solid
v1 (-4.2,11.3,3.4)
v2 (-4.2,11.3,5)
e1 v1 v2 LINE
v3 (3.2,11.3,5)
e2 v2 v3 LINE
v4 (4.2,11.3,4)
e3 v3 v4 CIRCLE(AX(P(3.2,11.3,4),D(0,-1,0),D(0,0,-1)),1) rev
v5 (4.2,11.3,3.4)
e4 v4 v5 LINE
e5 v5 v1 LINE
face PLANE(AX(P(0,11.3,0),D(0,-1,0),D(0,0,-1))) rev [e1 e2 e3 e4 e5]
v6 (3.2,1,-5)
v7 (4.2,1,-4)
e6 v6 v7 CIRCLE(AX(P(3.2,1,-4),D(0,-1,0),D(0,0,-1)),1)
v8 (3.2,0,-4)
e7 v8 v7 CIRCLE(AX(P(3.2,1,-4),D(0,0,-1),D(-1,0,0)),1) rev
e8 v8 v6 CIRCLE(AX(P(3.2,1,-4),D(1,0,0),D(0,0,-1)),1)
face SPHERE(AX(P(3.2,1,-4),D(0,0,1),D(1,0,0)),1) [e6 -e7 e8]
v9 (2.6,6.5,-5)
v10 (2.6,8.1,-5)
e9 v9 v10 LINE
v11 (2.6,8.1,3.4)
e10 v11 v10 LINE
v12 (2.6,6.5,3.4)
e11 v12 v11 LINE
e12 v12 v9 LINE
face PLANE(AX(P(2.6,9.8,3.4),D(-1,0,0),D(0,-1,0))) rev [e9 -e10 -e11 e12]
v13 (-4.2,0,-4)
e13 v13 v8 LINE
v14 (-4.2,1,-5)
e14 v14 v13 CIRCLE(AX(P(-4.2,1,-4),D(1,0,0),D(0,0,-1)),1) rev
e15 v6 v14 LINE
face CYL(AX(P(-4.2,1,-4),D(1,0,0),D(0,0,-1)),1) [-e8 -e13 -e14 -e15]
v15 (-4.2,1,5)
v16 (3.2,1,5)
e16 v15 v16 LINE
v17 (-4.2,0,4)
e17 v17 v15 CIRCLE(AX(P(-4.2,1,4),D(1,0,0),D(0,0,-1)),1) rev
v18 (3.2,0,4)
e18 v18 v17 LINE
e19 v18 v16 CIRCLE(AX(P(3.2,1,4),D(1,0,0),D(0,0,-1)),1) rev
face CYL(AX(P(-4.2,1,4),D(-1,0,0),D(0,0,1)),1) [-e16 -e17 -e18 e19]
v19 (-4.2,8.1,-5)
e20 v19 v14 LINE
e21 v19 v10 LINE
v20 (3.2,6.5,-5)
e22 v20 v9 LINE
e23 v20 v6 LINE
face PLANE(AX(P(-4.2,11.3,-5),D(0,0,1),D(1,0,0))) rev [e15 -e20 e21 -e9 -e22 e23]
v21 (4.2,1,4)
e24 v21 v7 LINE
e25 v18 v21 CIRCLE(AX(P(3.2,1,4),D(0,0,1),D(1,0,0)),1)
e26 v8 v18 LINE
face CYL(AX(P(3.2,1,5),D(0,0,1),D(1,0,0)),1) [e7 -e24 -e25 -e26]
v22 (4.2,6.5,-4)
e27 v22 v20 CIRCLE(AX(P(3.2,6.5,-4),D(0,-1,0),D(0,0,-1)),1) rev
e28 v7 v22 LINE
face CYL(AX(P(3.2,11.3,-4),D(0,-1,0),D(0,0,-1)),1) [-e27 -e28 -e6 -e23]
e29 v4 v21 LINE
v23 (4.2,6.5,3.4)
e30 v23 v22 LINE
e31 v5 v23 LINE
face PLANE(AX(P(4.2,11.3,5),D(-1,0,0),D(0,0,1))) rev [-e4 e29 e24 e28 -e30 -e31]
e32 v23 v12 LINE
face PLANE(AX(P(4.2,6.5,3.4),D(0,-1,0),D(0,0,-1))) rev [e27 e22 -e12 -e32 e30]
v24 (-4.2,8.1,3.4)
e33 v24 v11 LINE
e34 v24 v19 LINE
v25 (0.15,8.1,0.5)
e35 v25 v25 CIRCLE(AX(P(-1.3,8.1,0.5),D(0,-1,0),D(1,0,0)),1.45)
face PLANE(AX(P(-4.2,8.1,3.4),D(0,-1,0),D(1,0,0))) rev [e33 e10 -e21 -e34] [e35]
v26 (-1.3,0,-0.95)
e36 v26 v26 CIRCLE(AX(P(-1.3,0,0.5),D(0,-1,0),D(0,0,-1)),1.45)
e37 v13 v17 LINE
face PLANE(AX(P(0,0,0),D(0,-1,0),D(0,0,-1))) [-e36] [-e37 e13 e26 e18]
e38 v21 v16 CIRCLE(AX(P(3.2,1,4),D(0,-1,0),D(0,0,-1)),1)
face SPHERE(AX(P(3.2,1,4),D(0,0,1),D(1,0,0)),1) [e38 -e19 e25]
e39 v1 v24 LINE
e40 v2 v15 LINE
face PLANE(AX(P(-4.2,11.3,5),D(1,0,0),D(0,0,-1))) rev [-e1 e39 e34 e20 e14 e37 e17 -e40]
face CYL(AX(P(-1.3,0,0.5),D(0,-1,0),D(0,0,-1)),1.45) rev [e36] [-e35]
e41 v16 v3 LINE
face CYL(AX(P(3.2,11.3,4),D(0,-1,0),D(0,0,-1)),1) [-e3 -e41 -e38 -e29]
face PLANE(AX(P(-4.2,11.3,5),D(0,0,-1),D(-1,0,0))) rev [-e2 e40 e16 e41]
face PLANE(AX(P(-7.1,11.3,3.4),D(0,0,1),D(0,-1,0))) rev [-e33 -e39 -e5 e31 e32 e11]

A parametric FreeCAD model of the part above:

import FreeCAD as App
import Part
import Sketcher
Q = App.Units.Quantity


def edges_at(feature, points):
    """Names of the edges that pass closest to the given points."""
    edges = feature.Shape.Edges
    near = lambda p: min(range(len(edges)), key=lambda i: edges[i].distToShape(Part.Vertex(*p))[0])
    return sorted({f"Edge{near(p) + 1}" for p in points})


def add_polygon(sketch, points):
    """Adds a closed chain of lines whose ends are joined by coincident constraints."""
    first, n = sketch.GeometryCount, len(points)
    for a, b in zip(points, points[1:] + points[:1]):
        sketch.addGeometry(Part.LineSegment(App.Vector(*a, 0), App.Vector(*b, 0)), False)
    for i in range(n):
        sketch.addConstraint(Sketcher.Constraint("Coincident", first + i, 2, first + (i + 1) % n, 1))

doc = App.newDocument("Part")
params = doc.addObject("Spreadsheet::Sheet", "Params")
for row, (alias, value) in enumerate([
    ("sketch1_height", "10 mm"),
    ("sketch1_width", "8.4 mm"),
    ("pad1_length", "11.3 mm"),
    ("sketch2_width", "1.5 mm"),
    ("sketch2_height", "8.4 mm"),
    ("pocket1_length", "11.3 mm"),
    ("sketch3_width", "1.6 mm"),
    ("sketch3_height", "3.3 mm"),
    ("pocket2_length", "8.4 mm"),
    ("sketch4_width", "1.7 mm"),
    ("sketch4_height", "8.4 mm"),
    ("pocket3_length", "6.8 mm"),
    ("sketch5_width", "6.8 mm"),
    ("sketch5_height", "1.6 mm"),
    ("pad2_length", "1.6 mm"),
    ("fillet_radius", "1 mm"),
    ("sketch6_diameter", "2.9 mm"),
    ("hole_diameter", "2.9 mm"),
    ("sketch7_width", "1.6 mm"),
    ("pocket4_length", "6.8 mm"),
], start=1):
    params.set(f"A{row}", alias)
    params.set(f"B{row}", "=" + value)
    params.setAlias(f"B{row}", alias)

body = doc.addObject("PartDesign::Body", "Body")

sketch1 = body.newObject("Sketcher::SketchObject", "Sketch")
sketch1.AttachmentSupport = (doc.getObject("XZ_Plane"), [""])
sketch1.MapMode = "FlatFace"
add_polygon(sketch1, [(-4.2, -5), (-4.2, 5), (4.2, 5), (4.2, -5)])
sketch1.addConstraint([
    Sketcher.Constraint("Vertical", 0),
    Sketcher.Constraint("Horizontal", 1),
    Sketcher.Constraint("Vertical", 2),
    Sketcher.Constraint("Horizontal", 3),
    Sketcher.Constraint("Symmetric", 0, 2, 2, 2, -1, 1),
    Sketcher.Constraint("DistanceY", 0, 1, 0, 2, Q("10 mm")),
    Sketcher.Constraint("DistanceX", 1, 1, 1, 2, Q("8.4 mm")),
])
sketch1.setExpression("Constraints[9]", "Params.sketch1_height")
sketch1.setExpression("Constraints[10]", "Params.sketch1_width")
pad1 = body.newObject("PartDesign::Pad", "Pad")
pad1.Profile = sketch1
pad1.setExpression("Length", "Params.pad1_length")
pad1.Reversed = True

sketch2 = body.newObject("Sketcher::SketchObject", "Sketch001")
sketch2.AttachmentSupport = (doc.getObject("YZ_Plane"), [""])
sketch2.MapMode = "FlatFace"
sketch2.AttachmentOffset = App.Placement(App.Vector(0, 0, 4.2), App.Rotation())
add_polygon(sketch2, [(11.3, 3.4), (9.8, 3.4), (9.8, -5), (11.3, -5)])
sketch2.addConstraint([
    Sketcher.Constraint("Horizontal", 0),
    Sketcher.Constraint("Vertical", 1),
    Sketcher.Constraint("Horizontal", 2),
    Sketcher.Constraint("Vertical", 3),
    Sketcher.Constraint("DistanceX", 0, 2, 0, 1, Q("1.5 mm")),
    Sketcher.Constraint("DistanceY", 1, 2, 1, 1, Q("8.4 mm")),
    Sketcher.Constraint("DistanceY", 1, 2, -1, 1, Q("5 mm")),
    Sketcher.Constraint("DistanceX", -1, 1, 0, 2, Q("9.8 mm")),
])
sketch2.setExpression("Constraints[8]", "Params.sketch2_width")
sketch2.setExpression("Constraints[9]", "Params.sketch2_height")
pocket1 = body.newObject("PartDesign::Pocket", "Pocket")
pocket1.Profile = sketch2
pocket1.setExpression("Length", "Params.pocket1_length")

sketch3 = body.newObject("Sketcher::SketchObject", "Sketch002")
sketch3.AttachmentSupport = (doc.getObject("XY_Plane"), [""])
sketch3.MapMode = "FlatFace"
sketch3.AttachmentOffset = App.Placement(App.Vector(0, 0, -5), App.Rotation())
add_polygon(sketch3, [(4.2, 9.8), (4.2, 6.5), (2.6, 6.5), (2.6, 9.8)])
sketch3.addConstraint([
    Sketcher.Constraint("Vertical", 0),
    Sketcher.Constraint("Horizontal", 1),
    Sketcher.Constraint("Vertical", 2),
    Sketcher.Constraint("Horizontal", 3),
    Sketcher.Constraint("DistanceX", 1, 2, 1, 1, Q("1.6 mm")),
    Sketcher.Constraint("DistanceY", 0, 2, 0, 1, Q("3.3 mm")),
    Sketcher.Constraint("DistanceX", -1, 1, 0, 2, Q("4.2 mm")),
    Sketcher.Constraint("DistanceY", -1, 1, 0, 2, Q("6.5 mm")),
])
sketch3.setExpression("Constraints[8]", "Params.sketch3_width")
sketch3.setExpression("Constraints[9]", "Params.sketch3_height")
pocket2 = body.newObject("PartDesign::Pocket", "Pocket001")
pocket2.Profile = sketch3
pocket2.setExpression("Length", "Params.pocket2_length")
pocket2.Reversed = True

sketch4 = body.newObject("Sketcher::SketchObject", "Sketch003")
sketch4.AttachmentSupport = (doc.getObject("YZ_Plane"), [""])
sketch4.MapMode = "FlatFace"
sketch4.AttachmentOffset = App.Placement(App.Vector(0, 0, 2.6), App.Rotation())
add_polygon(sketch4, [(9.8, 3.4), (8.1, 3.4), (8.1, -5), (9.8, -5)])
sketch4.addConstraint([
    Sketcher.Constraint("Horizontal", 0),
    Sketcher.Constraint("Vertical", 1),
    Sketcher.Constraint("Horizontal", 2),
    Sketcher.Constraint("Vertical", 3),
    Sketcher.Constraint("DistanceX", 0, 2, 0, 1, Q("1.7 mm")),
    Sketcher.Constraint("DistanceY", 1, 2, 1, 1, Q("8.4 mm")),
    Sketcher.Constraint("DistanceY", 1, 2, -1, 1, Q("5 mm")),
    Sketcher.Constraint("DistanceX", -1, 1, 0, 2, Q("8.1 mm")),
])
sketch4.setExpression("Constraints[8]", "Params.sketch4_width")
sketch4.setExpression("Constraints[9]", "Params.sketch4_height")
pocket3 = body.newObject("PartDesign::Pocket", "Pocket002")
pocket3.Profile = sketch4
pocket3.setExpression("Length", "Params.pocket3_length")

sketch5 = body.newObject("Sketcher::SketchObject", "Sketch004")
sketch5.AttachmentSupport = (doc.getObject("XY_Plane"), [""])
sketch5.MapMode = "FlatFace"
sketch5.AttachmentOffset = App.Placement(App.Vector(0, 0, 3.4), App.Rotation())
add_polygon(sketch5, [(2.6, 9.7), (2.6, 8.1), (-4.2, 8.1), (-4.2, 9.7)])
sketch5.addConstraint([
    Sketcher.Constraint("Vertical", 0),
    Sketcher.Constraint("Horizontal", 1),
    Sketcher.Constraint("Vertical", 2),
    Sketcher.Constraint("Horizontal", 3),
    Sketcher.Constraint("DistanceX", 1, 2, 1, 1, Q("6.8 mm")),
    Sketcher.Constraint("DistanceY", 0, 2, 0, 1, Q("1.6 mm")),
    Sketcher.Constraint("DistanceX", -1, 1, 0, 2, Q("2.6 mm")),
    Sketcher.Constraint("DistanceY", -1, 1, 0, 2, Q("8.1 mm")),
])
sketch5.setExpression("Constraints[8]", "Params.sketch5_width")
sketch5.setExpression("Constraints[9]", "Params.sketch5_height")
pad2 = body.newObject("PartDesign::Pad", "Pad001")
pad2.Profile = sketch5
pad2.setExpression("Length", "Params.pad2_length")
pad2.Reversed = True
doc.recompute()

fillet = body.newObject("PartDesign::Fillet", "Fillet")
fillet.Base = (pad2, edges_at(pad2, [
    (4.2, 3.25, -5),
    (0, 0, 5),
    (0, 0, -5),
    (4.2, 0, 0),
    (4.2, 5.65, 5),
]))
fillet.setExpression("Radius", "Params.fillet_radius")

sketch6 = body.newObject("Sketcher::SketchObject", "Sketch005")
sketch6.AttachmentSupport = (doc.getObject("XZ_Plane"), [""])
sketch6.MapMode = "FlatFace"
sketch6.addGeometry(Part.Circle(App.Vector(-1.3, 0.5, 0), App.Vector(0, 0, 1), 1.45), False)
sketch6.addConstraint([
    Sketcher.Constraint("Diameter", 0, Q("2.9 mm")),
    Sketcher.Constraint("DistanceX", 0, 3, -1, 1, Q("1.3 mm")),
    Sketcher.Constraint("DistanceY", -1, 1, 0, 3, Q("0.5 mm")),
])
sketch6.setExpression("Constraints[0]", "Params.sketch6_diameter")
doc.recompute()
hole = body.newObject("PartDesign::Hole", "Hole")
hole.Profile = sketch6
hole.ThreadType = "None"
hole.setExpression("Diameter", "Params.hole_diameter")
hole.DepthType = "ThroughAll"

sketch7 = body.newObject("Sketcher::SketchObject", "Sketch006")
sketch7.AttachmentSupport = (doc.getObject("YZ_Plane"), [""])
sketch7.MapMode = "FlatFace"
sketch7.AttachmentOffset = App.Placement(App.Vector(0, 0, 2.6), App.Rotation())
add_polygon(sketch7, [(9.7, 3.4), (8.1, 3.4), (8.1, 1.8), (9.7, 1.8)])
sketch7.addConstraint([
    Sketcher.Constraint("Horizontal", 0),
    Sketcher.Constraint("Vertical", 1),
    Sketcher.Constraint("Horizontal", 2),
    Sketcher.Constraint("Vertical", 3),
    Sketcher.Constraint("Equal", 2, 1),
    Sketcher.Constraint("DistanceX", 0, 2, 0, 1, Q("1.6 mm")),
    Sketcher.Constraint("DistanceX", -1, 1, 0, 2, Q("8.1 mm")),
    Sketcher.Constraint("DistanceY", -1, 1, 0, 2, Q("3.4 mm")),
])
sketch7.setExpression("Constraints[9]", "Params.sketch7_width")
pocket4 = body.newObject("PartDesign::Pocket", "Pocket003")
pocket4.Profile = sketch7
pocket4.setExpression("Length", "Params.pocket4_length")

doc.recompute()
